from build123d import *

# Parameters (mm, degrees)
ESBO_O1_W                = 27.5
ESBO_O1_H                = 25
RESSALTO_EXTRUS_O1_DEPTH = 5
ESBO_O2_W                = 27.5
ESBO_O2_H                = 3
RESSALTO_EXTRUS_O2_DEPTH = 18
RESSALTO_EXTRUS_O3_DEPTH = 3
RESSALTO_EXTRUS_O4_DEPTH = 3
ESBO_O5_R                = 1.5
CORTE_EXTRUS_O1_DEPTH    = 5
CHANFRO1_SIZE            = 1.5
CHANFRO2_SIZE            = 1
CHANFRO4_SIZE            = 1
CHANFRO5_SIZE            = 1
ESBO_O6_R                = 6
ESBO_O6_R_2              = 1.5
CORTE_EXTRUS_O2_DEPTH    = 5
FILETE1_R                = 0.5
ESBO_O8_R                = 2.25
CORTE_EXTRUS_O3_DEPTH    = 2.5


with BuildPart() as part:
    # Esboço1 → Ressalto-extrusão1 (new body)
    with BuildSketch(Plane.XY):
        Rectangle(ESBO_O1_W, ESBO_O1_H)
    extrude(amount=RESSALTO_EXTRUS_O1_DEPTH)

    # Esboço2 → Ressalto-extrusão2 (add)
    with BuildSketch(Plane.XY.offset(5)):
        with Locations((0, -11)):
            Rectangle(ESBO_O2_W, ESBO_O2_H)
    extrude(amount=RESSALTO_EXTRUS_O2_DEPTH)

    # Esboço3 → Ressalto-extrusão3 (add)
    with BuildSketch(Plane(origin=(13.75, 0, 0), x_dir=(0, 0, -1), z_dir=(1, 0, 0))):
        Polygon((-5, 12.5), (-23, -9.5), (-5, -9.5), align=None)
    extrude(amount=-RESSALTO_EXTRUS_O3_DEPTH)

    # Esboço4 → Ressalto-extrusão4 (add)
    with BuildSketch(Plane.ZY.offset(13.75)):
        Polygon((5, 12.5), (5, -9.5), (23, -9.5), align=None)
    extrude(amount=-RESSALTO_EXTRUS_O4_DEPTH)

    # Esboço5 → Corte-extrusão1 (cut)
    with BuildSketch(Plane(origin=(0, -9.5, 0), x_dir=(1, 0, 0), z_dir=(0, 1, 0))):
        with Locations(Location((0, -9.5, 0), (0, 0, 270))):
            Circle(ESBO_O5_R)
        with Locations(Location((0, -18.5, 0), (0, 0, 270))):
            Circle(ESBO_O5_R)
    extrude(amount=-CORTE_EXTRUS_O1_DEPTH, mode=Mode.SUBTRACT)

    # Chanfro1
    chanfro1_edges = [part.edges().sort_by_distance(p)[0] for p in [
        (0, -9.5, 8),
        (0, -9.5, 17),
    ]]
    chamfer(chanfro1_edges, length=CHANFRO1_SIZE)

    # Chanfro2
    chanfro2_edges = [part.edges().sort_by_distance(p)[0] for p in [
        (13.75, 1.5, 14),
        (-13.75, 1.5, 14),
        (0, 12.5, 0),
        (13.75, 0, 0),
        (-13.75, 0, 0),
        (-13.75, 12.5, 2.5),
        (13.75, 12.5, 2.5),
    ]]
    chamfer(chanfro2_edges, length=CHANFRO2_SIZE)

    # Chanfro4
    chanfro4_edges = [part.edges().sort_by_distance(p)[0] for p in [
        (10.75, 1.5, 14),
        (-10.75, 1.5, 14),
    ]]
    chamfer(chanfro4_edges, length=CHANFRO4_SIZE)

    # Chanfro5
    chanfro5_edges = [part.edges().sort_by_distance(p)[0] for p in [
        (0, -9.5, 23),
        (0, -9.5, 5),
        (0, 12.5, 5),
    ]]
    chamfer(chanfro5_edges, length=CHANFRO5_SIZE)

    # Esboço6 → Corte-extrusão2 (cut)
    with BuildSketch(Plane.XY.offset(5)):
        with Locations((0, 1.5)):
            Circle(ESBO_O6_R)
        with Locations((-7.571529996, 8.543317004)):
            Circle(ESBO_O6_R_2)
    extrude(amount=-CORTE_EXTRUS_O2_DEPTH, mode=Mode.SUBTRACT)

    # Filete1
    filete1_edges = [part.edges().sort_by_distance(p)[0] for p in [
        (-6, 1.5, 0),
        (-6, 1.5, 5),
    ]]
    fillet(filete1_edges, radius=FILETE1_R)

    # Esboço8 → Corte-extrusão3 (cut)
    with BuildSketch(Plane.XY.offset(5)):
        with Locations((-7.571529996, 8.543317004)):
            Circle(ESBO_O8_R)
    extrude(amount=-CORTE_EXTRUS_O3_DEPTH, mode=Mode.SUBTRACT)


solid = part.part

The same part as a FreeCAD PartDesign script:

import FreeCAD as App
import Part
import Sketcher

V = App.Vector
Q = App.Units.Quantity


def edges_at(feature, points):
    """Names of the edges that pass closest to the given points."""
    edges = feature.Shape.Edges
    near = lambda p: min(range(len(edges)), key=lambda i: edges[i].distToShape(Part.Vertex(*p))[0])
    return sorted({f"Edge{near(p) + 1}" for p in points})


def add_polygon(sketch, points):
    """Adds a closed chain of lines whose ends are joined by coincident constraints."""
    first, n = sketch.GeometryCount, len(points)
    for a, b in zip(points, points[1:] + points[:1]):
        sketch.addGeometry(Part.LineSegment(App.Vector(*a, 0), App.Vector(*b, 0)), False)
    for i in range(n):
        sketch.addConstraint(Sketcher.Constraint("Coincident", first + i, 2, first + (i + 1) % n, 1))

doc = App.newDocument("Part")
body = doc.addObject("PartDesign::Body", "Body")

sketch1 = body.newObject("Sketcher::SketchObject", "Sketch")
sketch1.AttachmentSupport = (doc.getObject("XY_Plane"), [""])
sketch1.MapMode = "FlatFace"
add_polygon(sketch1, [(-14, 12), (-14, -12), (14, -12), (14, 12)])
sketch1.addConstraint([
    Sketcher.Constraint("Vertical", 0),
    Sketcher.Constraint("Horizontal", 1),
    Sketcher.Constraint("Vertical", 2),
    Sketcher.Constraint("Horizontal", 3),
    Sketcher.Constraint("Symmetric", 0, 2, 2, 2, -1, 1),
    Sketcher.Constraint("DistanceY", 0, 2, 0, 1, Q("25 mm")),
    Sketcher.Constraint("DistanceX", 1, 1, 1, 2, Q("27.5 mm")),
])
pad1 = body.newObject("PartDesign::Pad", "Pad")
pad1.Profile = sketch1
pad1.Length = 5

sketch2 = body.newObject("Sketcher::SketchObject", "Sketch001")
sketch2.AttachmentSupport = (doc.getObject("XY_Plane"), [""])
sketch2.MapMode = "FlatFace"
sketch2.AttachmentOffset = App.Placement(V(0, 0, 5), App.Rotation())
add_polygon(sketch2, [(-13.8, -9.5), (-13.8, -12.5), (13.8, -12.5), (13.8, -9.5)])
sketch2.addConstraint([
    Sketcher.Constraint("Vertical", 0),
    Sketcher.Constraint("Horizontal", 1),
    Sketcher.Constraint("Vertical", 2),
    Sketcher.Constraint("Horizontal", 3),
    Sketcher.Constraint("DistanceY", 0, 2, 0, 1, Q("3 mm")),
    Sketcher.Constraint("DistanceX", 1, 1, 1, 2, Q("27.5 mm")),
    Sketcher.Constraint("DistanceY", 0, 2, -1, 1, Q("12.5 mm")),
    Sketcher.Constraint("DistanceX", 0, 2, -1, 1, Q("13.75 mm")),
])
pad2 = body.newObject("PartDesign::Pad", "Pad001")
pad2.Profile = sketch2
pad2.Length = 18

sketch3 = body.newObject("Sketcher::SketchObject", "Sketch002")
sketch3.AttachmentSupport = (doc.getObject("YZ_Plane"), [""])
sketch3.MapMode = "FlatFace"
sketch3.AttachmentOffset = App.Placement(V(0, 0, 13.75), App.Rotation())
add_polygon(sketch3, [(12, 5), (-10, 23), (-10, 5)])
sketch3.addConstraint([
    Sketcher.Constraint("Vertical", 1),
    Sketcher.Constraint("Horizontal", 2),
    Sketcher.Constraint("DistanceX", 2, 1, 2, 2, Q("22 mm")),
    Sketcher.Constraint("DistanceY", 1, 2, 1, 1, Q("18 mm")),
    Sketcher.Constraint("DistanceY", -1, 1, 0, 2, Q("23 mm")),
    Sketcher.Constraint("DistanceX", 0, 2, -1, 1, Q("9.5 mm")),
])
pad3 = body.newObject("PartDesign::Pad", "Pad002")
pad3.Profile = sketch3
pad3.Length = 3
pad3.Reversed = True

sketch4 = body.newObject("Sketcher::SketchObject", "Sketch003")
sketch4.AttachmentSupport = (doc.getObject("YZ_Plane"), [""])
sketch4.MapMode = "FlatFace"
sketch4.AttachmentOffset = App.Placement(V(0, 0, -13.75), App.Rotation())
add_polygon(sketch4, [(12, 5), (-10, 5), (-10, 23)])
sketch4.addConstraint([
    Sketcher.Constraint("Horizontal", 0),
    Sketcher.Constraint("Vertical", 1),
    Sketcher.Constraint("DistanceX", 0, 2, 0, 1, Q("22 mm")),
    Sketcher.Constraint("DistanceY", 1, 1, 1, 2, Q("18 mm")),
    Sketcher.Constraint("DistanceY", -1, 1, 0, 2, Q("5 mm")),
    Sketcher.Constraint("DistanceX", 0, 2, -1, 1, Q("9.5 mm")),
])
pad4 = body.newObject("PartDesign::Pad", "Pad003")
pad4.Profile = sketch4
pad4.Length = 3

sketch5 = body.newObject("Sketcher::SketchObject", "Sketch004")
sketch5.AttachmentSupport = (doc.getObject("XZ_Plane"), [""])
sketch5.MapMode = "FlatFace"
sketch5.AttachmentOffset = App.Placement(V(0, 0, 9.5), App.Rotation())
sketch5.addGeometry([
    Part.Circle(V(0, 9.5, 0), V(0, 0, 1), 1.5),
    Part.Circle(V(0, 18.5, 0), V(0, 0, 1), 1.5),
], False)
sketch5.addConstraint([
    Sketcher.Constraint("Equal", 0, 1),
    Sketcher.Constraint("PointOnObject", 0, 3, -2),
    Sketcher.Constraint("PointOnObject", 1, 3, -2),
    Sketcher.Constraint("Diameter", 0, Q("3 mm")),
    Sketcher.Constraint("DistanceY", 0, 3, 1, 3, Q("9 mm")),
    Sketcher.Constraint("DistanceY", -1, 1, 0, 3, Q("9.5 mm")),
])
pocket1 = body.newObject("PartDesign::Pocket", "Pocket")
pocket1.Profile = sketch5
pocket1.Length = 5
pocket1.Reversed = True
doc.recompute()

chamfer = body.newObject("PartDesign::Chamfer", "Chamfer")
chamfer.Base = (pocket1, edges_at(pocket1, [(0, -9.5, 8), (0, -9.5, 17)]))
chamfer.Size = 1.5
doc.recompute()

chamfer2 = body.newObject("PartDesign::Chamfer", "Chamfer001")
chamfer2.Base = (chamfer, edges_at(chamfer, [
    (13.75, 1.5, 14),
    (-13.75, 1.5, 14),
    (0, 12.5, 0),
    (13.75, 0, 0),
    (-13.75, 0, 0),
    (-13.75, 12.5, 2.5),
    (13.75, 12.5, 2.5),
]))
chamfer2.Size = 1
doc.recompute()

chamfer3 = body.newObject("PartDesign::Chamfer", "Chamfer002")
chamfer3.Base = (chamfer2, edges_at(chamfer2, [(10.75, 1.5, 14), (-10.75, 1.5, 14)]))
chamfer3.Size = 1
doc.recompute()

chamfer4 = body.newObject("PartDesign::Chamfer", "Chamfer003")
chamfer4.Base = (chamfer3, edges_at(chamfer3, [(0, -9.5, 23), (0, -9.5, 5), (0, 12.5, 5)]))
chamfer4.Size = 1

sketch6 = body.newObject("Sketcher::SketchObject", "Sketch005")
sketch6.AttachmentSupport = (doc.getObject("XY_Plane"), [""])
sketch6.MapMode = "FlatFace"
sketch6.AttachmentOffset = App.Placement(V(0, 0, 5), App.Rotation())
sketch6.addGeometry([
    Part.Circle(V(0, 1.5, 0), V(0, 0, 1), 6),
    Part.Circle(V(-7.6, 8.5, 0), V(0, 0, 1), 1.5),
], False)
sketch6.addConstraint([
    Sketcher.Constraint("PointOnObject", 0, 3, -2),
    Sketcher.Constraint("Diameter", 0, Q("12 mm")),
    Sketcher.Constraint("Diameter", 1, Q("3 mm")),
    Sketcher.Constraint("DistanceY", -1, 1, 0, 3, Q("1.5 mm")),
    Sketcher.Constraint("DistanceX", 1, 3, -1, 1, Q("7.57153 mm")),
    Sketcher.Constraint("DistanceY", -1, 1, 1, 3, Q("8.543317 mm")),
])
pocket2 = body.newObject("PartDesign::Pocket", "Pocket001")
pocket2.Profile = sketch6
pocket2.Length = 5
doc.recompute()

fillet = body.newObject("PartDesign::Fillet", "Fillet")
fillet.Base = (pocket2, edges_at(pocket2, [(-6, 1.5, 0), (-6, 1.5, 5)]))
fillet.Radius = 0.5

sketch7 = body.newObject("Sketcher::SketchObject", "Sketch006")
sketch7.AttachmentSupport = (doc.getObject("XY_Plane"), [""])
sketch7.MapMode = "FlatFace"
sketch7.AttachmentOffset = App.Placement(V(0, 0, 5), App.Rotation())
sketch7.addGeometry(Part.Circle(V(-7.6, 8.5, 0), V(0, 0, 1), 2.2), False)
sketch7.addConstraint([
    Sketcher.Constraint("Diameter", 0, Q("4.5 mm")),
    Sketcher.Constraint("DistanceX", 0, 3, -1, 1, Q("7.57153 mm")),
    Sketcher.Constraint("DistanceY", -1, 1, 0, 3, Q("8.543317 mm")),
])
pocket3 = body.newObject("PartDesign::Pocket", "Pocket002")
pocket3.Profile = sketch7
pocket3.Length = 2.5

doc.recompute()
